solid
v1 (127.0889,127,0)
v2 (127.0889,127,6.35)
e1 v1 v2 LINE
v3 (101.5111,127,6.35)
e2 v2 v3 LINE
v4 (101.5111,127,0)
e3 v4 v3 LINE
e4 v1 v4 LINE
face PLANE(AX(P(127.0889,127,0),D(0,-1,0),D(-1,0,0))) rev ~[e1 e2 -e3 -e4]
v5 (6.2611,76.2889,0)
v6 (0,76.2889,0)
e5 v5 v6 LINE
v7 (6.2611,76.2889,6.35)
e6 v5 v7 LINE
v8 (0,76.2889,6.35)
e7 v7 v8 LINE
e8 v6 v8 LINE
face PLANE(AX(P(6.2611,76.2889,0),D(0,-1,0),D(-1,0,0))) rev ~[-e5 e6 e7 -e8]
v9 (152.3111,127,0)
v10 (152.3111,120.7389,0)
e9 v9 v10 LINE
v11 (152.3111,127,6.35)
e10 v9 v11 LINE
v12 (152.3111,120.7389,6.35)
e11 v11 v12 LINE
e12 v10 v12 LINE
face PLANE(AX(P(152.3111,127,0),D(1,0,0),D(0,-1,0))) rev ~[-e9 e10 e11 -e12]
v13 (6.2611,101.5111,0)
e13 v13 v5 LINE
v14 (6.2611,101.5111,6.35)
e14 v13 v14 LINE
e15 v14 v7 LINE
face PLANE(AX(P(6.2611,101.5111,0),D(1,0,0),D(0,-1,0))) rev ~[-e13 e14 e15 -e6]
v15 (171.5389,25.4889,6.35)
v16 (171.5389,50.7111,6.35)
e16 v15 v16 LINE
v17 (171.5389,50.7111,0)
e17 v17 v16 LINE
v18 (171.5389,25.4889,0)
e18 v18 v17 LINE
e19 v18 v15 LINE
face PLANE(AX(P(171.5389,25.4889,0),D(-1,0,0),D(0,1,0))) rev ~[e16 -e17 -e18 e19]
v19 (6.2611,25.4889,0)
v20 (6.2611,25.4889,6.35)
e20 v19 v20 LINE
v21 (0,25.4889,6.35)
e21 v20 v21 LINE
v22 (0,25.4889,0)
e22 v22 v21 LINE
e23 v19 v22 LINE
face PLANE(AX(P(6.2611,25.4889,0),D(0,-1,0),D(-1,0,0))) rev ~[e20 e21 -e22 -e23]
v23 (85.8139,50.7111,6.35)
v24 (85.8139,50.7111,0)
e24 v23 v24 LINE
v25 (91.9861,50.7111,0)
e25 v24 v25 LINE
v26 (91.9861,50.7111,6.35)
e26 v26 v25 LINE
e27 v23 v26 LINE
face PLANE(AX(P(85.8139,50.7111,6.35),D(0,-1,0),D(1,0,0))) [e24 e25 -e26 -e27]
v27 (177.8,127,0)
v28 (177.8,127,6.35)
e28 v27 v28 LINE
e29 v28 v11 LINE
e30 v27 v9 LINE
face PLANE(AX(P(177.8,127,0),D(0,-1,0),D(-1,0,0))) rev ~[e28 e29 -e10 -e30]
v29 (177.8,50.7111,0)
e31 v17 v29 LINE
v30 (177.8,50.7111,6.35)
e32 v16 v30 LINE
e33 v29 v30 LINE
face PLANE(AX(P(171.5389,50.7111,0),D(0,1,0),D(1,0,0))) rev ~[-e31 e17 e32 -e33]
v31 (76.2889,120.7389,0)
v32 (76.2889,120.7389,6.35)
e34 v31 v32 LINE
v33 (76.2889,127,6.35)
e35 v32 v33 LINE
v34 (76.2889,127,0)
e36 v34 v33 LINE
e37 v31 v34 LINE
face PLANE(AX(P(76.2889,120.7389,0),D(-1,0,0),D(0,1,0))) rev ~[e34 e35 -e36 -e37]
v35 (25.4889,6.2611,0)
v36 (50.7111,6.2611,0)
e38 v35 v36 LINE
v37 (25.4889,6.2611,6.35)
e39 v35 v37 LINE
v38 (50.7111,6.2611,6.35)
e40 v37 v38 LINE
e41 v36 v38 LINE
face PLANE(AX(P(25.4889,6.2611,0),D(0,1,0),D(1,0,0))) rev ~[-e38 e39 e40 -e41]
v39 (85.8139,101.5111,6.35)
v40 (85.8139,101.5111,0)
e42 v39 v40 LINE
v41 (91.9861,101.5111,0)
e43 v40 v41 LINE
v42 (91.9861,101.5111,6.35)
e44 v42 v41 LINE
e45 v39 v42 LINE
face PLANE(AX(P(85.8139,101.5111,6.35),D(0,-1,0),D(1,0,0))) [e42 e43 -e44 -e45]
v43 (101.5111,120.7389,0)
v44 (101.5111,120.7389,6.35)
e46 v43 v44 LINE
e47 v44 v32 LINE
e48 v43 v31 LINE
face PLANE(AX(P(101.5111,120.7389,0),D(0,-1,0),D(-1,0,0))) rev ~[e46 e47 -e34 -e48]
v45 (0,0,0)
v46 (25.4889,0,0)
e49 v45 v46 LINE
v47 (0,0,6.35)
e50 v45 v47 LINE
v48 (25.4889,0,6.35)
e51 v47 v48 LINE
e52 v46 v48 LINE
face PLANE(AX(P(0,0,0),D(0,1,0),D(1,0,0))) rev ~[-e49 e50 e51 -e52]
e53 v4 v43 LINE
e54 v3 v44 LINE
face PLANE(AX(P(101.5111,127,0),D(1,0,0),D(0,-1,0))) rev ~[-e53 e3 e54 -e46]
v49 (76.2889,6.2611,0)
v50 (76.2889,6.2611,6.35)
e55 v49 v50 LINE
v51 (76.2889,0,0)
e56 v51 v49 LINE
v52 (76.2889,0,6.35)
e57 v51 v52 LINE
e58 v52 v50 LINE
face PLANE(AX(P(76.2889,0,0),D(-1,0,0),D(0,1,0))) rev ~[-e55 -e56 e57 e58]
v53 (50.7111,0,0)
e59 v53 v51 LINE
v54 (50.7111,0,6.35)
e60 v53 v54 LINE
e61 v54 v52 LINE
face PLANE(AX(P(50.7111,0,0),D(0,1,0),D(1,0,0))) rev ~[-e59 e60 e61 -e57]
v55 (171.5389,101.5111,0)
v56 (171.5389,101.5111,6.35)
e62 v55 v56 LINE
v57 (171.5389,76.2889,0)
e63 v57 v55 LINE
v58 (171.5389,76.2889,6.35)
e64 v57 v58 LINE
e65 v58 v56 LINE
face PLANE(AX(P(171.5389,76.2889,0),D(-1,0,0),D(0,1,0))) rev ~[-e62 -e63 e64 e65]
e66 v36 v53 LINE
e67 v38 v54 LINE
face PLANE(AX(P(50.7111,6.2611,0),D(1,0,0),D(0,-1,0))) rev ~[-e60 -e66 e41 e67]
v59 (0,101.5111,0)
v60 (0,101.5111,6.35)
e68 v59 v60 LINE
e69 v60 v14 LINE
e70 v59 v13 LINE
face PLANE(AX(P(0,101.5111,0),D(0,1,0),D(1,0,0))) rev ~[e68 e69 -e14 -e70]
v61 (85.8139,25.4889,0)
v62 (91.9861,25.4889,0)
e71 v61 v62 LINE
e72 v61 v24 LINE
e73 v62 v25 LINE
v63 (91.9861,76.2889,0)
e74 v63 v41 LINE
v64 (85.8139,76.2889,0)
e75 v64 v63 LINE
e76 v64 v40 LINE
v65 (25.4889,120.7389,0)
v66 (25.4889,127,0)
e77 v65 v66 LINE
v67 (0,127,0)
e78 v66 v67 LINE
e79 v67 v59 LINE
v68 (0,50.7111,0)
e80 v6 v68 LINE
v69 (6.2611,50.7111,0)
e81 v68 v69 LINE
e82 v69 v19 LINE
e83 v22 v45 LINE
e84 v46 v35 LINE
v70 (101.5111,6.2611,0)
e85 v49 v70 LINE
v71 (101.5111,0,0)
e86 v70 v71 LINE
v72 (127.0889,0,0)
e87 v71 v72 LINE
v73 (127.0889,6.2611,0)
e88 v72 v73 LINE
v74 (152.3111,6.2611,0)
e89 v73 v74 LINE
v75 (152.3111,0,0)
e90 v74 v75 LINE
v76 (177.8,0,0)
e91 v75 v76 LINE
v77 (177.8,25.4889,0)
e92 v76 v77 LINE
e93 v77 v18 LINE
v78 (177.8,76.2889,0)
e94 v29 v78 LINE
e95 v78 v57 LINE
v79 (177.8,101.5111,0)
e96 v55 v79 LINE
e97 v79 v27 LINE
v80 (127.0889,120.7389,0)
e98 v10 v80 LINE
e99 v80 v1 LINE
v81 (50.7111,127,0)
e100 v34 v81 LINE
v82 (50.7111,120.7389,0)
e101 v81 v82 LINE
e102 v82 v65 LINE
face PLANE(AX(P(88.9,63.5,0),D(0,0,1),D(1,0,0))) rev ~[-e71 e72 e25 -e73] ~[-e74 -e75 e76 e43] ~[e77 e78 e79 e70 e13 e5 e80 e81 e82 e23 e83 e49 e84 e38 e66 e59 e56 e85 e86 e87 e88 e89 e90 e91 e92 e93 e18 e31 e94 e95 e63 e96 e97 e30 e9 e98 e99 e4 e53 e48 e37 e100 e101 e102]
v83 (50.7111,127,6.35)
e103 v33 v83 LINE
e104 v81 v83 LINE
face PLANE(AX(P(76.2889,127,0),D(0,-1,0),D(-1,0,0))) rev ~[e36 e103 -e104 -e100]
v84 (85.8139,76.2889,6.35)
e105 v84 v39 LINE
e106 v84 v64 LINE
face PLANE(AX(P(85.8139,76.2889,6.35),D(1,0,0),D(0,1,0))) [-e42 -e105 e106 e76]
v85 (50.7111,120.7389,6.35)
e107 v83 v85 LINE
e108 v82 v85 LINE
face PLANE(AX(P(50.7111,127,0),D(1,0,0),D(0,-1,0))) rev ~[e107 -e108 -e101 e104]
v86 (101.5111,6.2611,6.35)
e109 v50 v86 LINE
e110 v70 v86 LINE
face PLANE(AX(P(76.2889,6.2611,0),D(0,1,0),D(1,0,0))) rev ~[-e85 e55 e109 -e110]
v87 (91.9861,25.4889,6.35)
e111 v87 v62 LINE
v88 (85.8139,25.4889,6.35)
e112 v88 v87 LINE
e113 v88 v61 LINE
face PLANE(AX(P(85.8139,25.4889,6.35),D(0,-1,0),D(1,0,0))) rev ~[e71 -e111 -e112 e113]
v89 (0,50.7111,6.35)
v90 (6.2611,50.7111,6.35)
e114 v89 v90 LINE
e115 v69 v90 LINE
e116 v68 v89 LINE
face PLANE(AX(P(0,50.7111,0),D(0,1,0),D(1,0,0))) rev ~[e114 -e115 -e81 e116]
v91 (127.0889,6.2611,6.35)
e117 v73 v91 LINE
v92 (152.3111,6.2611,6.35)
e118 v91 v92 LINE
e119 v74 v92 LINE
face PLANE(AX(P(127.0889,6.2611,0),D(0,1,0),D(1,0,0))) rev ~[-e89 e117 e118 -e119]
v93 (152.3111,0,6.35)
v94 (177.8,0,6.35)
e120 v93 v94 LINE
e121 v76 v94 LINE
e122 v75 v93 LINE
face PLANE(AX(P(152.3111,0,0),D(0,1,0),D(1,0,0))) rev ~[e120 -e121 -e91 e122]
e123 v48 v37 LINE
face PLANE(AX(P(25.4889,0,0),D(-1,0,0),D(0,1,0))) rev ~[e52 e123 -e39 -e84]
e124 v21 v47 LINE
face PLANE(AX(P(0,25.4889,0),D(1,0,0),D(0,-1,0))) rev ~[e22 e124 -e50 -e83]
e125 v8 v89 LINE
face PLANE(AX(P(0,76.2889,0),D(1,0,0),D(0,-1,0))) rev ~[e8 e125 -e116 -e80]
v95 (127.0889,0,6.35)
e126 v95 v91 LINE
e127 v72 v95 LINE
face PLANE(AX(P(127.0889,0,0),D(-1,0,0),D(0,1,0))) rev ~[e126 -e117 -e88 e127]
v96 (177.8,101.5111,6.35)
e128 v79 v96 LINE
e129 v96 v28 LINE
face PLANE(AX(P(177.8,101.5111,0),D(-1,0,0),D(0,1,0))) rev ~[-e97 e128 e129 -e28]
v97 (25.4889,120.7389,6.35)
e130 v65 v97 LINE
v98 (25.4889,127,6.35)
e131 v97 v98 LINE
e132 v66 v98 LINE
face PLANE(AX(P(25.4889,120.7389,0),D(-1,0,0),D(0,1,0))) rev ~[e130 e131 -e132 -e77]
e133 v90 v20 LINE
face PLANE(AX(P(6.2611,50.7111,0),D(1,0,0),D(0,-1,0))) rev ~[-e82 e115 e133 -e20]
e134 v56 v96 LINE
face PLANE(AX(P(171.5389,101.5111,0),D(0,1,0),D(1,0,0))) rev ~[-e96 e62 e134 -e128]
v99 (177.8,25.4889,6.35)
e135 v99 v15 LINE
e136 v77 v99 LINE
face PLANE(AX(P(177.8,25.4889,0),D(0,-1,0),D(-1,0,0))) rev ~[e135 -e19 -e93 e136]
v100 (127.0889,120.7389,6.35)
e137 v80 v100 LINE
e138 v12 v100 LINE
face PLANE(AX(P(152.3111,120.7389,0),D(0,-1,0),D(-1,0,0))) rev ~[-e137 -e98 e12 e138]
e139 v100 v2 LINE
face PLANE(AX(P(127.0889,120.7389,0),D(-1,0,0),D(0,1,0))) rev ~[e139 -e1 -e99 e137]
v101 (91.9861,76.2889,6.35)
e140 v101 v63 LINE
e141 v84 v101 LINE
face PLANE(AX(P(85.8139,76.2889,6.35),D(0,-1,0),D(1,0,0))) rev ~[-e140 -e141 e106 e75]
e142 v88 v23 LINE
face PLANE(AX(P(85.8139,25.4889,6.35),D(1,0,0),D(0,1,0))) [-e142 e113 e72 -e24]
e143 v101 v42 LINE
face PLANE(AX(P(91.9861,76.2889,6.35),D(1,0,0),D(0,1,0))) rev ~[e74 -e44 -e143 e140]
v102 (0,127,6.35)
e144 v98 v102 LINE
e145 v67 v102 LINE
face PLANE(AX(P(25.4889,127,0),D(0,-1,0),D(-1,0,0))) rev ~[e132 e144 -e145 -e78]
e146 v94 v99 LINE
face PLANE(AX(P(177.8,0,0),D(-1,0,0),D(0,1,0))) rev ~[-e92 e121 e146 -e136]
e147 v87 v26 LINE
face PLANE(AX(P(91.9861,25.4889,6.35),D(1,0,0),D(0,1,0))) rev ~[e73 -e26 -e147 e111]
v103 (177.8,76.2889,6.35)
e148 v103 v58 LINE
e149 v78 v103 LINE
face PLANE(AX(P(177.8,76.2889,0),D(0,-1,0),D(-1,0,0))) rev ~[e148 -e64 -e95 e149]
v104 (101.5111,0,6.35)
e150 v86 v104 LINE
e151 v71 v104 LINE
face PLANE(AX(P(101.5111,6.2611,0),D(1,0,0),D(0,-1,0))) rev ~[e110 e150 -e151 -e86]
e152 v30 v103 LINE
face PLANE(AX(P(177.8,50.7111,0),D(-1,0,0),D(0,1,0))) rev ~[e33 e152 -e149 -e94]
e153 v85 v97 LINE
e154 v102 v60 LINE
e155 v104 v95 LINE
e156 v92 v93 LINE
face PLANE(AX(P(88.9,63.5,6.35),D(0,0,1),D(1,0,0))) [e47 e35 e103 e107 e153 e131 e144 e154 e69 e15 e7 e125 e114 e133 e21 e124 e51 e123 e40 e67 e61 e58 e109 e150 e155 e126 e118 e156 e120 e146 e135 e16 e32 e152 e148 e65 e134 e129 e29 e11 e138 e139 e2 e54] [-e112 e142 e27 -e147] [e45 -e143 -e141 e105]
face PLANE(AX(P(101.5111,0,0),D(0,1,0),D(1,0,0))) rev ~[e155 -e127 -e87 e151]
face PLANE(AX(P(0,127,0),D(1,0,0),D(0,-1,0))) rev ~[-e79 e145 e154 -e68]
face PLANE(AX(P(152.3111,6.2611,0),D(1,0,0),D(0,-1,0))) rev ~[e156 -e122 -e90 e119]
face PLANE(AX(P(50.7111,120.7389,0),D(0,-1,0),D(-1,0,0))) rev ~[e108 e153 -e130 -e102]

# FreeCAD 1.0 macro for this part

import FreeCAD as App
import Part
import Sketcher
Q = App.Units.Quantity


def add_polygon(sketch, points):
    """Adds a closed chain of lines whose ends are joined by coincident constraints."""
    first, n = sketch.GeometryCount, len(points)
    for a, b in zip(points, points[1:] + points[:1]):
        sketch.addGeometry(Part.LineSegment(App.Vector(*a, 0), App.Vector(*b, 0)), False)
    for i in range(n):
        sketch.addConstraint(Sketcher.Constraint("Coincident", first + i, 2, first + (i + 1) % n, 1))

doc = App.newDocument("Part")
params = doc.addObject("Spreadsheet::Sheet", "Params")
for row, (alias, value) in enumerate([
    ("sketch1_width", "0.993 in"),
    ("pad1_length", "0.25 in"),
    ("sketch2_width", "0.243 in"),
    ("sketch2_height", "0.993 in"),
], start=1):
    params.set(f"A{row}", alias)
    params.set(f"B{row}", "=" + value)
    params.setAlias(f"B{row}", alias)

body = doc.addObject("PartDesign::Body", "Body")

# Sketch on XY plane
sketch1 = doc.addObject("Sketcher::SketchObject", "Sketch")
body.addObject(sketch1)
sketch1.AttachmentSupport = (doc.XY_Plane, [""])
sketch1.MapMode = "FlatFace"
add_polygon(sketch1, [(0, 25.4889), (0, 0), (25.4889, 0), (25.4889, 6.2611), (50.7111, 6.2611), (50.7111, 0), (76.2889, 0), (76.2889, 6.2611), (101.5111, 6.2611), (101.5111, 0), (127.0889, 0), (127.0889, 6.2611), (152.3111, 6.2611), (152.3111, 0), (177.8, 0), (177.8, 25.4889), (171.5389, 25.4889), (171.5389, 50.7111), (177.8, 50.7111), (177.8, 76.2889), (171.5389, 76.2889), (171.5389, 101.5111), (177.8, 101.5111), (177.8, 127), (152.3111, 127), (152.3111, 120.7389), (127.0889, 120.7389), (127.0889, 127), (101.5111, 127), (101.5111, 120.7389), (76.2889, 120.7389), (76.2889, 127), (50.7111, 127), (50.7111, 120.7389), (25.4889, 120.7389), (25.4889, 127), (0, 127), (0, 101.5111), (6.2611, 101.5111), (6.2611, 76.2889), (0, 76.2889), (0, 50.7111), (6.2611, 50.7111), (6.2611, 25.4889)])  # lines 0-43
sketch1.addConstraint([
    Sketcher.Constraint("Vertical", 0),
    Sketcher.Constraint("Horizontal", 1),
    Sketcher.Constraint("Vertical", 2),
    Sketcher.Constraint("Horizontal", 3),
    Sketcher.Constraint("Vertical", 4),
    Sketcher.Constraint("Horizontal", 5),
    Sketcher.Constraint("Vertical", 6),
    Sketcher.Constraint("Horizontal", 7),
    Sketcher.Constraint("Vertical", 8),
    Sketcher.Constraint("Horizontal", 9),
    Sketcher.Constraint("Vertical", 10),
    Sketcher.Constraint("Horizontal", 11),
    Sketcher.Constraint("Vertical", 12),
    Sketcher.Constraint("Horizontal", 13),
    Sketcher.Constraint("Vertical", 14),
    Sketcher.Constraint("Horizontal", 15),
    Sketcher.Constraint("Vertical", 16),
    Sketcher.Constraint("Horizontal", 17),
    Sketcher.Constraint("Vertical", 18),
    Sketcher.Constraint("Horizontal", 19),
    Sketcher.Constraint("Vertical", 20),
    Sketcher.Constraint("Horizontal", 21),
    Sketcher.Constraint("Vertical", 22),
    Sketcher.Constraint("Horizontal", 23),
    Sketcher.Constraint("Vertical", 24),
    Sketcher.Constraint("Horizontal", 25),
    Sketcher.Constraint("Vertical", 26),
    Sketcher.Constraint("Horizontal", 27),
    Sketcher.Constraint("Vertical", 28),
    Sketcher.Constraint("Horizontal", 29),
    Sketcher.Constraint("Vertical", 30),
    Sketcher.Constraint("Horizontal", 31),
    Sketcher.Constraint("Vertical", 32),
    Sketcher.Constraint("Horizontal", 33),
    Sketcher.Constraint("Vertical", 34),
    Sketcher.Constraint("Horizontal", 35),
    Sketcher.Constraint("Vertical", 36),
    Sketcher.Constraint("Horizontal", 37),
    Sketcher.Constraint("Vertical", 38),
    Sketcher.Constraint("Horizontal", 39),
    Sketcher.Constraint("Vertical", 40),
    Sketcher.Constraint("Horizontal", 41),
    Sketcher.Constraint("Vertical", 42),
    Sketcher.Constraint("Horizontal", 43),
    Sketcher.Constraint("Coincident", 0, 2, -1, 1),
    Sketcher.Constraint("PointOnObject", 4, 2, -1),
    Sketcher.Constraint("PointOnObject", 8, 2, -1),
    Sketcher.Constraint("PointOnObject", 12, 2, -1),
    Sketcher.Constraint("PointOnObject", 35, 2, -2),
    Sketcher.Constraint("PointOnObject", 39, 2, -2),
    Sketcher.Constraint("Horizontal", 3, 2, 6, 2),
    Sketcher.Constraint("Horizontal", 7, 2, 10, 2),
    Sketcher.Constraint("Horizontal", 23, 2, 26, 2),
    Sketcher.Constraint("Horizontal", 25, 2, 28, 2),
    Sketcher.Constraint("Horizontal", 27, 2, 30, 2),
    Sketcher.Constraint("Horizontal", 29, 2, 32, 2),
    Sketcher.Constraint("Horizontal", 31, 2, 34, 2),
    Sketcher.Constraint("Horizontal", 21, 2, 36, 2),
    Sketcher.Constraint("Horizontal", 19, 2, 38, 2),
    Sketcher.Constraint("Horizontal", 17, 2, 40, 2),
    Sketcher.Constraint("Horizontal", 15, 2, 42, 2),
    Sketcher.Constraint("Vertical", 14, 2, 17, 2),
    Sketcher.Constraint("Vertical", 16, 2, 19, 2),
    Sketcher.Constraint("Vertical", 18, 2, 21, 2),
    Sketcher.Constraint("Vertical", 12, 2, 23, 2),
    Sketcher.Constraint("Vertical", 10, 2, 25, 2),
    Sketcher.Constraint("Vertical", 8, 2, 27, 2),
    Sketcher.Constraint("Vertical", 6, 2, 29, 2),
    Sketcher.Constraint("Vertical", 4, 2, 31, 2),
    Sketcher.Constraint("Vertical", 2, 2, 33, 2),
    Sketcher.Constraint("Vertical", 38, 2, 41, 2),
    Sketcher.Constraint("Equal", 3, 7),
    Sketcher.Constraint("Equal", 5, 9),
    Sketcher.Constraint("Equal", 7, 11),
    Sketcher.Constraint("Equal", 1, 13),
    Sketcher.Constraint("Equal", 21, 37),
    Sketcher.Constraint("Equal", 35, 0),
    Sketcher.Constraint("Equal", 43, 2),
    Sketcher.Constraint("Equal", 33, 16),
    Sketcher.Constraint("Equal", 31, 18),
    Sketcher.Constraint("Equal", 16, 20),
    Sketcher.Constraint("Equal", 14, 22),
    Sketcher.Constraint("Equal", 12, 24),
    Sketcher.Constraint("DistanceX", -1, 1, 13, 2, Q("7 in")),
    Sketcher.Constraint("DistanceY", -1, 1, 22, 2, Q("5 in")),
    Sketcher.Constraint("DistanceX", 3, 1, 3, 2, Q("0.993 in")),
    Sketcher.Constraint("DistanceX", 10, 2, 15, 2, Q("1.75 in")),
])
sketch1.setExpression("Constraints[129]", "Params.sketch1_width")
pad1 = doc.addObject("PartDesign::Pad", "Pad")
body.addObject(pad1)
pad1.Profile = sketch1
pad1.setExpression("Length", "Params.pad1_length")

# Sketch on XY plane
sketch2 = doc.addObject("Sketcher::SketchObject", "Sketch001")
body.addObject(sketch2)
sketch2.AttachmentSupport = (doc.XY_Plane, [""])
sketch2.MapMode = "FlatFace"
sketch2.AttachmentOffset = App.Placement(App.Vector(0, 0, 0.25 * 25.4), App.Rotation())
add_polygon(sketch2, [(85.8139, 101.5111), (85.8139, 76.2889), (91.9861, 76.2889), (91.9861, 101.5111)])  # lines 0-3
add_polygon(sketch2, [(85.8139, 50.7111), (85.8139, 25.4889), (91.9861, 25.4889), (91.9861, 50.7111)])  # lines 4-7
sketch2.addConstraint([
    Sketcher.Constraint("Vertical", 0),
    Sketcher.Constraint("Horizontal", 1),
    Sketcher.Constraint("Vertical", 2),
    Sketcher.Constraint("Horizontal", 3),
    Sketcher.Constraint("Vertical", 4),
    Sketcher.Constraint("Horizontal", 5),
    Sketcher.Constraint("Vertical", 6),
    Sketcher.Constraint("Horizontal", 7),
    Sketcher.Constraint("Vertical", 3, 2, 4, 2),
    Sketcher.Constraint("Vertical", 2, 2, 5, 2),
    Sketcher.Constraint("Equal", 2, 4),
    Sketcher.Constraint("DistanceY", 4, 2, 0, 2, Q("2 in")),
    Sketcher.Constraint("DistanceX", 1, 1, 1, 2, Q("0.243 in")),
    Sketcher.Constraint("DistanceY", 0, 2, 0, 1, Q("0.993 in")),
    Sketcher.Constraint("DistanceX", -1, 1, 0, 2, Q("3.3785 in")),
    Sketcher.Constraint("DistanceY", -1, 1, 0, 2, Q("3.0035 in")),
])
sketch2.setExpression("Constraints[20]", "Params.sketch2_width")
sketch2.setExpression("Constraints[21]", "Params.sketch2_height")
pocket1 = doc.addObject("PartDesign::Pocket", "Pocket")
body.addObject(pocket1)
pocket1.Profile = sketch2
pocket1.Type = "ThroughAll"

doc.recompute()
